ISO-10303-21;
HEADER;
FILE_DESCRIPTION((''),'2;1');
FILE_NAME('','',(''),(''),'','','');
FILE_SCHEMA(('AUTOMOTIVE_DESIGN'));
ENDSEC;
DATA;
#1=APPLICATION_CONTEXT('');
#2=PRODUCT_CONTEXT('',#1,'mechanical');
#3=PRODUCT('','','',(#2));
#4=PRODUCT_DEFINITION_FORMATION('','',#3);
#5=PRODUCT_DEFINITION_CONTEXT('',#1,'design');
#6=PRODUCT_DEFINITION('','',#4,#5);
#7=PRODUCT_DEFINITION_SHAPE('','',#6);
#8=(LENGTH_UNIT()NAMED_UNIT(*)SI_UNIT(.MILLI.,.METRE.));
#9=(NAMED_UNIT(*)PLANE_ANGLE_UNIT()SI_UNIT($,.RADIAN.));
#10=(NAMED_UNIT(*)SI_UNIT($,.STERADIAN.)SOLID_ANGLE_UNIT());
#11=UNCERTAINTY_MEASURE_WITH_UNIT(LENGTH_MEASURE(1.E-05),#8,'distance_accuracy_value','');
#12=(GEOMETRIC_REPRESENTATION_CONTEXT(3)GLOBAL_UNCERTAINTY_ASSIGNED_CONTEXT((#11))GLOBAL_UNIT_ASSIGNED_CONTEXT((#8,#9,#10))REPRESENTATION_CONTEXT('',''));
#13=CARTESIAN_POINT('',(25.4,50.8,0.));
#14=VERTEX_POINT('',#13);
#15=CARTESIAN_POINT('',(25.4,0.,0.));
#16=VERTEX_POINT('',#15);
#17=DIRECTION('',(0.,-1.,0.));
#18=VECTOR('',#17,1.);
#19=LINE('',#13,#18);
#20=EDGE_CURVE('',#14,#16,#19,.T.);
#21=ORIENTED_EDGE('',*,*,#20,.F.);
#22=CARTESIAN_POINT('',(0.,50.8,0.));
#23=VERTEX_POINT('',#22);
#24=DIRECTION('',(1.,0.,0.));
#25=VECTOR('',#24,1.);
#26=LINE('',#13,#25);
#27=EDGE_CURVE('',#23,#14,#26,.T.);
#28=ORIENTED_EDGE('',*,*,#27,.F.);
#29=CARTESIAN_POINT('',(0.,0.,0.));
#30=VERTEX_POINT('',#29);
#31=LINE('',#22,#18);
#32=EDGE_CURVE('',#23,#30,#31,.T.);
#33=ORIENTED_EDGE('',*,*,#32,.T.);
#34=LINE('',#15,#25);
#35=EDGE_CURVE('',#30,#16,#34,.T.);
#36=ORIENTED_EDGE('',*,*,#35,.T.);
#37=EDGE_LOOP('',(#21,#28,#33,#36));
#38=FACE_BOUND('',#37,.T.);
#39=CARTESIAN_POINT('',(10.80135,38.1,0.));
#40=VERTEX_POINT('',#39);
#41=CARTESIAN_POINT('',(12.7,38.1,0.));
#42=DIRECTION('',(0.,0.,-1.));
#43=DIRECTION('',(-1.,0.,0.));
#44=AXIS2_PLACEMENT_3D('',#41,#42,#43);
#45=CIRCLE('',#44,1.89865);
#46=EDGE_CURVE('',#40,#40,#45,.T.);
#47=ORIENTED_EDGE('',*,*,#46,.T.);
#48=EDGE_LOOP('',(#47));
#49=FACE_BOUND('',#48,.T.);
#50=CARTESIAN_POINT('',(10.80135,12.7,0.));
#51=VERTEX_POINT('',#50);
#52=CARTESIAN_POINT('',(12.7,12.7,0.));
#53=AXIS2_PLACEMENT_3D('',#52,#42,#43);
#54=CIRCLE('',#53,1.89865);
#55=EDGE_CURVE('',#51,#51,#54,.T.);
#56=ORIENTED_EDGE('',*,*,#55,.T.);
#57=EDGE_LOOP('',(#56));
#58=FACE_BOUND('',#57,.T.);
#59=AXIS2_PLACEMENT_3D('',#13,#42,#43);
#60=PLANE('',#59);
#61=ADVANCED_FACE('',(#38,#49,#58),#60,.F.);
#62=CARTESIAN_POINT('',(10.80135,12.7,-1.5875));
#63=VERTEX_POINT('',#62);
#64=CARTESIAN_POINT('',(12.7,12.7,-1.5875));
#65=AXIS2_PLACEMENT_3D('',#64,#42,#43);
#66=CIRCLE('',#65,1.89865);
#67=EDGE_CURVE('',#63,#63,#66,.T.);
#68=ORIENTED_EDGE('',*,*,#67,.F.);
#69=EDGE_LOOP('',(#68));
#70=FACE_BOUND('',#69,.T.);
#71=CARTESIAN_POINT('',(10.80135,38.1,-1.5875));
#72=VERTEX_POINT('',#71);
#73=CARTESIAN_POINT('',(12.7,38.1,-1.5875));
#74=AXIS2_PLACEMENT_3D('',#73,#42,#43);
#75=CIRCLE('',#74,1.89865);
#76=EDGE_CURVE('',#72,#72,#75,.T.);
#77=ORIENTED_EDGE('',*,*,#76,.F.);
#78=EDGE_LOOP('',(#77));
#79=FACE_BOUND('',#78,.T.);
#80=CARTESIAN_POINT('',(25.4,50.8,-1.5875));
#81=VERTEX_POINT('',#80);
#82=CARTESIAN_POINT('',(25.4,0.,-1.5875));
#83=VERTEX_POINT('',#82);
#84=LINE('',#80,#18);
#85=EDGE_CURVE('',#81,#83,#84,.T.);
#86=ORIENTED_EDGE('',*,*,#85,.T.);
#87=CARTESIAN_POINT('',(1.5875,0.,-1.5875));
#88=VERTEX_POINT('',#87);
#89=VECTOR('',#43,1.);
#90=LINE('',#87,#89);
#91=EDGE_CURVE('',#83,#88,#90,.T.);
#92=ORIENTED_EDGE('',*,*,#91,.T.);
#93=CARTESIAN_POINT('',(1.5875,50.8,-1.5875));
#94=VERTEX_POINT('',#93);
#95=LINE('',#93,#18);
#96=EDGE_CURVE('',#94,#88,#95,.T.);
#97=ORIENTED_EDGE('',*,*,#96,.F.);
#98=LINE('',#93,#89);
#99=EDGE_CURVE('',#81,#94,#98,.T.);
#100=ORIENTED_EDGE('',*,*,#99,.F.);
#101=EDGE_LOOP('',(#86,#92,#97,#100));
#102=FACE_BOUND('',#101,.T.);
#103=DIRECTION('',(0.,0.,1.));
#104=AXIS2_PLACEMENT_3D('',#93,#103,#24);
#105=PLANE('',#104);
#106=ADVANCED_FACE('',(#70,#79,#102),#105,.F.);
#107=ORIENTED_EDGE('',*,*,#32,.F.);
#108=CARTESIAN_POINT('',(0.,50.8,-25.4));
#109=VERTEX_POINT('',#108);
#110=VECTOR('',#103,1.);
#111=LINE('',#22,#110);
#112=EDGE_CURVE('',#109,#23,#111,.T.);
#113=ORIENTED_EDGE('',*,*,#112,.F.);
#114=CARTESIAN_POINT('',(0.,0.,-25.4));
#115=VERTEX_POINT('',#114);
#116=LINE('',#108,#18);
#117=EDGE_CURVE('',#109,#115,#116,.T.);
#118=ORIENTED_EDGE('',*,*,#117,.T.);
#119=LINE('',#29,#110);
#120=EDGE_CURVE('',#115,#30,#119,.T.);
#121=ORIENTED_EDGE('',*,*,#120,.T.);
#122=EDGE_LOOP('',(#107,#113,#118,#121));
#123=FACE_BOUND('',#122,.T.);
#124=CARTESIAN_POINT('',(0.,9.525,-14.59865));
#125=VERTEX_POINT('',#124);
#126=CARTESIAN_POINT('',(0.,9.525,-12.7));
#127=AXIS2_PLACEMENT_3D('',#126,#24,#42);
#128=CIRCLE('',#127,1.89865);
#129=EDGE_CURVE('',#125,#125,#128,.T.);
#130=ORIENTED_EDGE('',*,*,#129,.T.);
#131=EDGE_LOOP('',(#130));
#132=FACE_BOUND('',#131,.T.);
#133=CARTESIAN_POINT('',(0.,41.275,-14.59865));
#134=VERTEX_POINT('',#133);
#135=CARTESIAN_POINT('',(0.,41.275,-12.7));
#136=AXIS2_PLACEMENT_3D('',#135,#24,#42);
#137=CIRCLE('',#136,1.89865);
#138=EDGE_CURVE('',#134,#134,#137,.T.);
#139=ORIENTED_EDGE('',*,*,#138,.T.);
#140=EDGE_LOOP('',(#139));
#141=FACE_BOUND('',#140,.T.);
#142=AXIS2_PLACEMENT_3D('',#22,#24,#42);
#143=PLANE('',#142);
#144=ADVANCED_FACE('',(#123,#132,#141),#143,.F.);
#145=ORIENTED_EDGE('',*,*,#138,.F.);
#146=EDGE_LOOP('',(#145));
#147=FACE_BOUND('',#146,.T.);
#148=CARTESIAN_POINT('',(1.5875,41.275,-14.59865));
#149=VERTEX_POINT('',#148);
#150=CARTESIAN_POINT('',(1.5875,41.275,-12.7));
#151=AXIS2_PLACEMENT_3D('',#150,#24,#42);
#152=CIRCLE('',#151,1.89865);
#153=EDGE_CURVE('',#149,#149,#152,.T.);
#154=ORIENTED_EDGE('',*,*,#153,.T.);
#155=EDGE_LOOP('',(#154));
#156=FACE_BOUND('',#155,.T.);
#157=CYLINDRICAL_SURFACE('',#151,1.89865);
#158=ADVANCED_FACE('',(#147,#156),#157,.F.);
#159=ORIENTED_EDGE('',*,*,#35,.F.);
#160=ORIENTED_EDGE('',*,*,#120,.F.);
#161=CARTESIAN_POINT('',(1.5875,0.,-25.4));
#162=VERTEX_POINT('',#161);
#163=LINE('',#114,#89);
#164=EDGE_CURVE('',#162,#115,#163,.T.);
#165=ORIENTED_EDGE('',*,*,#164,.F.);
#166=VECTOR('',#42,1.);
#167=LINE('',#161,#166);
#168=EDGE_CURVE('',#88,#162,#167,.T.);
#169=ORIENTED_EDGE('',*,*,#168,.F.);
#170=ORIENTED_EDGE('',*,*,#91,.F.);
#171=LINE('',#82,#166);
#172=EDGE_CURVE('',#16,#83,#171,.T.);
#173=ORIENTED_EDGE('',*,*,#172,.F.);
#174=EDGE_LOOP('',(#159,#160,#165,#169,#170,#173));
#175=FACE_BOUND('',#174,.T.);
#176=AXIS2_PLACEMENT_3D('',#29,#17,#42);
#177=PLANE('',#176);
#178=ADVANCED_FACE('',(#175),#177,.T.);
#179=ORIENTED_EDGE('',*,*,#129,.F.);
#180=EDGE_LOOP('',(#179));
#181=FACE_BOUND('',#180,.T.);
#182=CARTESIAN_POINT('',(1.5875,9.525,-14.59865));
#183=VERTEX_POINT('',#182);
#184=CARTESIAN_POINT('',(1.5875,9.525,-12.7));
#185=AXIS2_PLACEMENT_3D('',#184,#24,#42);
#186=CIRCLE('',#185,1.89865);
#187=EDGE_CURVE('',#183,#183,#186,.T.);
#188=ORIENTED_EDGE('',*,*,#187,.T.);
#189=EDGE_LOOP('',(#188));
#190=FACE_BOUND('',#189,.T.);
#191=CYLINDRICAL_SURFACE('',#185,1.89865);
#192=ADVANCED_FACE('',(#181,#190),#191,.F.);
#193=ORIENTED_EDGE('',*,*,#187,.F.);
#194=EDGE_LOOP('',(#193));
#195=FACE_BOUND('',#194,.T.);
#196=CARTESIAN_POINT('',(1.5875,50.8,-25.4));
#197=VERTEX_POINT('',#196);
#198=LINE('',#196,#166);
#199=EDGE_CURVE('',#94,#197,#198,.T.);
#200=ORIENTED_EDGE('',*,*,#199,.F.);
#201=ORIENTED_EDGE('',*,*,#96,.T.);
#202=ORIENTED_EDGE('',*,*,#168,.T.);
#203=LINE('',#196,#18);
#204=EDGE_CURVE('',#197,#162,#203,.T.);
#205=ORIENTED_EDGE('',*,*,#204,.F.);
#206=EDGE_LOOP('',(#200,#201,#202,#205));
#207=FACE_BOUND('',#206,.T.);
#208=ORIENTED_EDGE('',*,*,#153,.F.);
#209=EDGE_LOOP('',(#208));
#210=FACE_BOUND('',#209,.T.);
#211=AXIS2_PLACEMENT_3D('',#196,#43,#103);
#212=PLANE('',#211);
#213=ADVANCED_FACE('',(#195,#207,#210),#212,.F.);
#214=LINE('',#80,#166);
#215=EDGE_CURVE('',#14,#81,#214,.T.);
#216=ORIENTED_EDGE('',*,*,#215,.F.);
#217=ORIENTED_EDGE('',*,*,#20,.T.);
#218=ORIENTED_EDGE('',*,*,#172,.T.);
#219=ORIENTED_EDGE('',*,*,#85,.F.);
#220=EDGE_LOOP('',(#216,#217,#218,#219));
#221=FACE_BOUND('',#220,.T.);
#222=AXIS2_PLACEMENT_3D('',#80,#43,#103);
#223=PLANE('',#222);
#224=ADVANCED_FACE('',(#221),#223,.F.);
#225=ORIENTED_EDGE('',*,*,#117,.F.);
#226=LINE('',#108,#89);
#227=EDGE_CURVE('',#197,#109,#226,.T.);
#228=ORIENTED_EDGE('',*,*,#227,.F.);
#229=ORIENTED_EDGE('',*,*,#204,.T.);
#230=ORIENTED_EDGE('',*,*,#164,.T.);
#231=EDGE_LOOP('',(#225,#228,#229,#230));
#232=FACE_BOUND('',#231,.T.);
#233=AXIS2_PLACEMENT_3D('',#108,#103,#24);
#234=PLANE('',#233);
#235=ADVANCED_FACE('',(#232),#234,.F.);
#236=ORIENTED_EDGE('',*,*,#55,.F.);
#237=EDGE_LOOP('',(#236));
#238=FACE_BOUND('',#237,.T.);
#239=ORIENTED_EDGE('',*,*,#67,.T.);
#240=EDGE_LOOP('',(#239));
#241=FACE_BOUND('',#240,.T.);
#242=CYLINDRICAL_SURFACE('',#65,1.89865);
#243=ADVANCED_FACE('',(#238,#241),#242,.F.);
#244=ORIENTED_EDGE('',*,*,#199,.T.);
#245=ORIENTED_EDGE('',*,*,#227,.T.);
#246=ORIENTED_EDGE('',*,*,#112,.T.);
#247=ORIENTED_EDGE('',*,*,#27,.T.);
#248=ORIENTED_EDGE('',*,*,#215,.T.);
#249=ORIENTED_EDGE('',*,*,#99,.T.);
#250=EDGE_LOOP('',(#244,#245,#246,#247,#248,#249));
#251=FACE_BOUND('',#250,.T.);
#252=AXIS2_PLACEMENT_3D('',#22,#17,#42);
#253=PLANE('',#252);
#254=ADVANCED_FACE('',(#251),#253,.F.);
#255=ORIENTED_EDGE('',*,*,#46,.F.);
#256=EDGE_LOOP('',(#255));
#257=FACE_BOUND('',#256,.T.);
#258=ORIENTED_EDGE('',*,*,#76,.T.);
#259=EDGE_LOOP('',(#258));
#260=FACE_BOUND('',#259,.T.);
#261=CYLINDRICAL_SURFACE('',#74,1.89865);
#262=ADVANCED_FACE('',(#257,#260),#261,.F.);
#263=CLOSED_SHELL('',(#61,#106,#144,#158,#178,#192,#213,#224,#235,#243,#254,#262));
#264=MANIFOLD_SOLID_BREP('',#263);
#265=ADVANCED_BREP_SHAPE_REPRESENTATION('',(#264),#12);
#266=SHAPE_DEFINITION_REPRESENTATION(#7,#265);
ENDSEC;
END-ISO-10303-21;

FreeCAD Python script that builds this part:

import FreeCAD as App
import Part
import Sketcher

V = App.Vector
Q = App.Units.Quantity


def add_polygon(sketch, points):
    """Adds a closed chain of lines whose ends are joined by coincident constraints."""
    first, n = sketch.GeometryCount, len(points)
    for a, b in zip(points, points[1:] + points[:1]):
        sketch.addGeometry(Part.LineSegment(App.Vector(*a, 0), App.Vector(*b, 0)), False)
    for i in range(n):
        sketch.addConstraint(Sketcher.Constraint("Coincident", first + i, 2, first + (i + 1) % n, 1))

doc = App.newDocument("Part")
body = doc.addObject("PartDesign::Body", "Body")

sketch1 = doc.addObject("Sketcher::SketchObject", "Sketch")
body.addObject(sketch1)
sketch1.AttachmentSupport = (doc.XZ_Plane, [""])
sketch1.MapMode = "FlatFace"
add_polygon(sketch1, [(1.6, -25.4), (0, -25.4), (0, 0), (25.4, 0), (25.4, -1.6), (1.6, -1.6)])
sketch1.addConstraint([
    Sketcher.Constraint("Horizontal", 0),
    Sketcher.Constraint("Vertical", 1),
    Sketcher.Constraint("Horizontal", 2),
    Sketcher.Constraint("Vertical", 3),
    Sketcher.Constraint("Horizontal", 4),
    Sketcher.Constraint("Vertical", 5),
    Sketcher.Constraint("Coincident", 1, 2, -1, 1),
    Sketcher.Constraint("Equal", 2, 1),
    Sketcher.Constraint("Equal", 0, 3),
    Sketcher.Constraint("DistanceX", 2, 1, 2, 2, Q("1 in")),
    Sketcher.Constraint("DistanceX", 0, 2, 0, 1, Q("0.0625 in")),
])
pad1 = doc.addObject("PartDesign::Pad", "Pad")
body.addObject(pad1)
pad1.Profile = sketch1
pad1.Length = Q("2 in")
pad1.Reversed = True

sketch2 = doc.addObject("Sketcher::SketchObject", "Sketch001")
body.addObject(sketch2)
sketch2.AttachmentSupport = (doc.XY_Plane, [""])
sketch2.MapMode = "FlatFace"
sketch2.AttachmentOffset = App.Placement(V(0, 0, -0.0625 * 25.4), App.Rotation())
sketch2.addGeometry([
    Part.Circle(V(12.7, 38.1, 0), V(0, 0, 1), 1.9),
    Part.Circle(V(12.7, 12.7, 0), V(0, 0, 1), 1.9),
], False)
sketch2.addConstraint([
    Sketcher.Constraint("Equal", 0, 1),
    Sketcher.Constraint("Vertical", 0, 3, 1, 3),
    Sketcher.Constraint("DistanceY", 1, 3, 0, 3, Q("1 in")),
    Sketcher.Constraint("Diameter", 0, Q("0.1495 in")),
    Sketcher.Constraint("DistanceX", -1, 1, 0, 3, Q("0.5 in")),
    Sketcher.Constraint("DistanceY", -1, 1, 0, 3, Q("1.5 in")),
])
doc.recompute()
hole = doc.addObject("PartDesign::Hole", "Hole")
body.addObject(hole)
hole.Profile = sketch2
hole.ThreadType = "None"
hole.Diameter = Q("0.1495 in")
hole.DepthType = "ThroughAll"
hole.Reversed = True

sketch3 = doc.addObject("Sketcher::SketchObject", "Sketch002")
body.addObject(sketch3)
sketch3.AttachmentSupport = (doc.YZ_Plane, [""])
sketch3.MapMode = "FlatFace"
sketch3.AttachmentOffset = App.Placement(V(0, 0, 0.0625 * 25.4), App.Rotation())
sketch3.addGeometry([
    Part.Circle(V(41.3, -12.7, 0), V(0, 0, 1), 1.9),
    Part.Circle(V(9.5, -12.7, 0), V(0, 0, 1), 1.9),
], False)
sketch3.addConstraint([
    Sketcher.Constraint("Equal", 0, 1),
    Sketcher.Constraint("Horizontal", 0, 3, 1, 3),
    Sketcher.Constraint("Diameter", 0, Q("0.1495 in")),
    Sketcher.Constraint("DistanceY", 0, 3, -1, 1, Q("0.5 in")),
    Sketcher.Constraint("DistanceX", 1, 3, 0, 3, Q("1.25 in")),
    Sketcher.Constraint("DistanceX", -1, 1, 0, 3, Q("1.625 in")),
])
doc.recompute()
hole2 = doc.addObject("PartDesign::Hole", "Hole001")
body.addObject(hole2)
hole2.Profile = sketch3
hole2.ThreadType = "None"
hole2.Diameter = Q("0.1495 in")
hole2.DepthType = "ThroughAll"

doc.recompute()
